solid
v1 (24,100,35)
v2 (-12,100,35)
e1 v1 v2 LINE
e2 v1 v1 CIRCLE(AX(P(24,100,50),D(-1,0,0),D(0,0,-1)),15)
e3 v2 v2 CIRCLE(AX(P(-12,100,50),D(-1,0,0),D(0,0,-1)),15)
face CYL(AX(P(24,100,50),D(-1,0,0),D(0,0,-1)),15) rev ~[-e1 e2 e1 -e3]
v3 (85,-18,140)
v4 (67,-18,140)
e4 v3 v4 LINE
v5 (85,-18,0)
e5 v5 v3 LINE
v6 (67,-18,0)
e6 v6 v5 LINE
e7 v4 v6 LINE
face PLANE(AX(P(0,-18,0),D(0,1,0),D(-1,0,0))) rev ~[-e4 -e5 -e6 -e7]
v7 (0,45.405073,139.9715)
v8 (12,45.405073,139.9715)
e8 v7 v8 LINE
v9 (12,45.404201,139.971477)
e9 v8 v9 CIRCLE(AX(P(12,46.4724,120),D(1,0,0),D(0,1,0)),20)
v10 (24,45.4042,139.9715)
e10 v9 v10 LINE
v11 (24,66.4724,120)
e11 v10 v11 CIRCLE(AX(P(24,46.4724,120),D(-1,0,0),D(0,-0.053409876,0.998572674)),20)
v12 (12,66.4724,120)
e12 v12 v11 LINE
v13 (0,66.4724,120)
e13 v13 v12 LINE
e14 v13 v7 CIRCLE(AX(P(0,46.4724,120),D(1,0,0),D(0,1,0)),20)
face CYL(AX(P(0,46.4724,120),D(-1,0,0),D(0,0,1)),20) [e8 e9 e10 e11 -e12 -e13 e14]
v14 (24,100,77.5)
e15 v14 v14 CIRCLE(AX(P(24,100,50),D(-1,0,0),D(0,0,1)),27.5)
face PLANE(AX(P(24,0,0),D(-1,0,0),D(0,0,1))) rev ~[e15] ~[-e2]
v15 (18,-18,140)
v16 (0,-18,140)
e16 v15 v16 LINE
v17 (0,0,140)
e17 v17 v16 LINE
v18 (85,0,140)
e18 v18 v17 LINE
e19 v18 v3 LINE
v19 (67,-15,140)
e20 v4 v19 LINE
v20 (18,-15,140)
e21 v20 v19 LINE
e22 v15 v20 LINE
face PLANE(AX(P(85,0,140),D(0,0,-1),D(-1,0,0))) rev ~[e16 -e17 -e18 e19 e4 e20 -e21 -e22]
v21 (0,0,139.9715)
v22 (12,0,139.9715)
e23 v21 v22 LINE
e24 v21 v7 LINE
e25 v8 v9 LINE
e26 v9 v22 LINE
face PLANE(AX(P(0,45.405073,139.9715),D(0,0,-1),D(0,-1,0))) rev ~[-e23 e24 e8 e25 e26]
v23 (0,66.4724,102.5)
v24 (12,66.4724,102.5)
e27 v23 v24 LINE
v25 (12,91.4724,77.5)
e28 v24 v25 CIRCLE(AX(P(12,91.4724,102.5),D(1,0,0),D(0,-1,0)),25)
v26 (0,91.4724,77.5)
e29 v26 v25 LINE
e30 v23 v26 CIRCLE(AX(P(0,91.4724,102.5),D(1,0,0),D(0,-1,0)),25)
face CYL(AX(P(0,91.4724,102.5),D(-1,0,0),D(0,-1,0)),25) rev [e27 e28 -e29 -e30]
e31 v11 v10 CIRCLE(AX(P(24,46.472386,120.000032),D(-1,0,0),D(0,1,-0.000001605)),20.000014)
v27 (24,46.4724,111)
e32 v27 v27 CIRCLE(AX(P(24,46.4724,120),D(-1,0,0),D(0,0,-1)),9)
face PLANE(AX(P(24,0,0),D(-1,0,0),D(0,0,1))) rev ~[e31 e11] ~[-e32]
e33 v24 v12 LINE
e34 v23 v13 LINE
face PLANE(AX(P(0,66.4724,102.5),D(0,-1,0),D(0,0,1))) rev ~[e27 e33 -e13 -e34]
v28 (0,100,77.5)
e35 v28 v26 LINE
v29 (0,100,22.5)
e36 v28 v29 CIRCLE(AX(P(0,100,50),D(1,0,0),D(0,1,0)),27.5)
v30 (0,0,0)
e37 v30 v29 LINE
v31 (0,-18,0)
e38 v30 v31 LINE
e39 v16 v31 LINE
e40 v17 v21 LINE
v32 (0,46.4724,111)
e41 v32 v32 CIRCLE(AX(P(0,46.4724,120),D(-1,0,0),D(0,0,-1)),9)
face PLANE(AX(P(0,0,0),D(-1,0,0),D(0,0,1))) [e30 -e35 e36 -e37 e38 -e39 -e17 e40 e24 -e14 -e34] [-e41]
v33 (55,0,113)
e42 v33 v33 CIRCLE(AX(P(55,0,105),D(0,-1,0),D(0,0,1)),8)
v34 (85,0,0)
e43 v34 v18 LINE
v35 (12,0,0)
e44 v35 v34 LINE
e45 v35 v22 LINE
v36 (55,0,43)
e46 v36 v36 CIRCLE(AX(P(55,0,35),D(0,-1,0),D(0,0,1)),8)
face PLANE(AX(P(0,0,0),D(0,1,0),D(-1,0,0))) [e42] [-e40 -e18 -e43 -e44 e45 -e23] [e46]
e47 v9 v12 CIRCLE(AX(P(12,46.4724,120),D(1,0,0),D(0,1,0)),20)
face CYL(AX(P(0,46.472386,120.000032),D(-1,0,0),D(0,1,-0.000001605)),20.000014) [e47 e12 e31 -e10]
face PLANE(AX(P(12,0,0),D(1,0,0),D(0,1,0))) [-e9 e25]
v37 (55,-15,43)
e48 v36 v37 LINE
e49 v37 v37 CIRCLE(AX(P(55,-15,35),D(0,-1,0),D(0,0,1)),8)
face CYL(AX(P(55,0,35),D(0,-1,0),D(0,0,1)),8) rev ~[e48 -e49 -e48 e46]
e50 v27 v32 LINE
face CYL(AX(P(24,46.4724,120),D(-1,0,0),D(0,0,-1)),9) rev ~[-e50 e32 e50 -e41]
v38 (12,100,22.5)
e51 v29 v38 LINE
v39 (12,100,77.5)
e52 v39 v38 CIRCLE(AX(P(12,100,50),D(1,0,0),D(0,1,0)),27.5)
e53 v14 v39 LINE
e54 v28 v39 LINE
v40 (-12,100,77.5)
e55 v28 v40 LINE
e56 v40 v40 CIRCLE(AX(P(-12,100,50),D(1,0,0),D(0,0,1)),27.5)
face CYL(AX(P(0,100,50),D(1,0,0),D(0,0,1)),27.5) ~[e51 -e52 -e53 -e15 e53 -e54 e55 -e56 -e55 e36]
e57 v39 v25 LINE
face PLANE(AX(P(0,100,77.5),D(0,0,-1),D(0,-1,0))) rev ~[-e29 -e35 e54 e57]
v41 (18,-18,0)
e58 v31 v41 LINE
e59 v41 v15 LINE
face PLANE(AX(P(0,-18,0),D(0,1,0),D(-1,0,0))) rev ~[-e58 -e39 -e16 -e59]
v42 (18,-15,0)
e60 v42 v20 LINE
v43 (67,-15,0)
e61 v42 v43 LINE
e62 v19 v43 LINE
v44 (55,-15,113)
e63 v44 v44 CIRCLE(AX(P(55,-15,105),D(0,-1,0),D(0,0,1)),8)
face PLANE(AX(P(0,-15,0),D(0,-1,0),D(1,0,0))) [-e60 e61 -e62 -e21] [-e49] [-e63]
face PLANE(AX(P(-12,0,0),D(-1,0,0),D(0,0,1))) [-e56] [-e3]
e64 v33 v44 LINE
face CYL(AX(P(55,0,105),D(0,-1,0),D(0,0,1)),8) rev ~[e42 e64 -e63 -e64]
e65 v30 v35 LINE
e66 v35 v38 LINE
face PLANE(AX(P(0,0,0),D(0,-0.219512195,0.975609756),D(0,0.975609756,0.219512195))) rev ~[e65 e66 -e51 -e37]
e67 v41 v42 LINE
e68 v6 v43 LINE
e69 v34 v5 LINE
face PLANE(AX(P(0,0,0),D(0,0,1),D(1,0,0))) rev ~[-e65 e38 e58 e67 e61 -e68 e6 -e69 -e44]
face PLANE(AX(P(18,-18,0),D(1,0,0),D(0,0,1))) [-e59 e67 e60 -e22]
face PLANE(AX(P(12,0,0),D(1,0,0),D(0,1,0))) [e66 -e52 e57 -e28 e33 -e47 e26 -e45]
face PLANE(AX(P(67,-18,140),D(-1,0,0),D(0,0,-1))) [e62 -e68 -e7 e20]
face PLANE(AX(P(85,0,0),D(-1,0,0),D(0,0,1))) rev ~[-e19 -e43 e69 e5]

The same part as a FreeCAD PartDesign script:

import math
import FreeCAD as App
import Part
import Sketcher
from FreeCAD import Vector


def add_polygon(sketch, points):
    """Adds a closed chain of lines whose ends are joined by coincident constraints."""
    first, n = sketch.GeometryCount, len(points)
    for a, b in zip(points, points[1:] + points[:1]):
        sketch.addGeometry(Part.LineSegment(App.Vector(*a, 0), App.Vector(*b, 0)), False)
    for i in range(n):
        sketch.addConstraint(Sketcher.Constraint("Coincident", first + i, 2, first + (i + 1) % n, 1))

doc = App.newDocument("Part")
body = doc.addObject("PartDesign::Body", "Body")

# Sketch on YZ plane
sketch1 = body.newObject("Sketcher::SketchObject", "Sketch")
sketch1.AttachmentSupport = (doc.getObject("YZ_Plane"), [""])
sketch1.MapMode = "FlatFace"
sketch1.addGeometry([
    Part.LineSegment(Vector(66.4724, 102.5, 0), Vector(66.4724, 120, 0)),  # 0
    Part.ArcOfCircle(Part.Circle(Vector(46.4724, 120, 0), Vector(0, 0, 1), 20), math.radians(93.059121), math.radians(360)),  # 1
    Part.LineSegment(Vector(45.405073, 139.9715, 0), Vector(0, 139.9715, 0)),  # 2
    Part.LineSegment(Vector(0, 139.9715, 0), Vector(0, 0, 0)),  # 3
    Part.LineSegment(Vector(0, 0, 0), Vector(100, 22.5, 0)),  # 4
    Part.ArcOfCircle(Part.Circle(Vector(100, 50, 0), Vector(0, 0, 1), 27.5), math.radians(90), math.radians(270)),  # 5
    Part.LineSegment(Vector(100, 77.5, 0), Vector(91.4724, 77.5, 0)),  # 6
    Part.ArcOfCircle(Part.Circle(Vector(91.4724, 102.5, 0), Vector(0, 0, 1), 25), math.radians(180), math.radians(270)),  # 7
], False)
sketch1.addConstraint([
    Sketcher.Constraint("Tangent", 0, 2, 1, 2),
    Sketcher.Constraint("Coincident", 1, 1, 2, 1),
    Sketcher.Constraint("Coincident", 2, 2, 3, 1),
    Sketcher.Constraint("Coincident", 3, 2, 4, 1),
    Sketcher.Constraint("Coincident", 4, 2, 5, 2),
    Sketcher.Constraint("Tangent", 5, 1, 6, 1),
    Sketcher.Constraint("Tangent", 6, 2, 7, 2),
    Sketcher.Constraint("Tangent", 7, 1, 0, 1),
    Sketcher.Constraint("Vertical", 0),
    Sketcher.Constraint("Horizontal", 2),
    Sketcher.Constraint("Vertical", 3),
    Sketcher.Constraint("Horizontal", 6),
    Sketcher.Constraint("Coincident", 3, 2, -1, 1),
    Sketcher.Constraint("Vertical", 5, 3, 4, 2),
    Sketcher.Constraint("Radius", 1, 20.0),
    Sketcher.Constraint("Radius", 7, 25.0),
    Sketcher.Constraint("Radius", 5, 27.5),
    Sketcher.Constraint("DistanceY", -1, 1, 1, 3, 120.0),
    Sketcher.Constraint("DistanceX", -1, 1, 5, 3, 100.0),
    Sketcher.Constraint("DistanceY", -1, 1, 5, 3, 50.0),
    Sketcher.Constraint("DistanceX", 2, 2, 2, 1, 45.405),
    Sketcher.Constraint("DistanceX", 6, 2, 6, 1, 8.5276),
])
pad1 = body.newObject("PartDesign::Pad", "Pad")
pad1.Profile = sketch1
pad1.Length = 12

# Sketch on XZ plane
sketch2 = body.newObject("Sketcher::SketchObject", "Sketch001")
sketch2.AttachmentSupport = (doc.getObject("XZ_Plane"), [""])
sketch2.MapMode = "FlatFace"
add_polygon(sketch2, [(85, 0), (0, 0), (0, 140), (85, 140)])  # lines 0-3
sketch2.addConstraint([
    Sketcher.Constraint("Horizontal", 0),
    Sketcher.Constraint("Vertical", 1),
    Sketcher.Constraint("Horizontal", 2),
    Sketcher.Constraint("Vertical", 3),
    Sketcher.Constraint("Coincident", 0, 2, -1, 1),
    Sketcher.Constraint("DistanceX", 0, 2, 0, 1, 85.0),
    Sketcher.Constraint("DistanceY", 1, 1, 1, 2, 140.0),
])
pad2 = body.newObject("PartDesign::Pad", "Pad001")
pad2.Profile = sketch2
pad2.Length = 18

# Sketch on YZ plane
sketch3 = body.newObject("Sketcher::SketchObject", "Sketch002")
sketch3.AttachmentSupport = (doc.getObject("YZ_Plane"), [""])
sketch3.MapMode = "FlatFace"
sketch3.addGeometry(Part.Circle(Vector(100, 50, 0), Vector(0, 0, 1), 27.5), False)
sketch3.addConstraint([
    Sketcher.Constraint("Diameter", 0, 55.0),
    Sketcher.Constraint("DistanceX", -1, 1, 0, 3, 100.0),
    Sketcher.Constraint("DistanceY", -1, 1, 0, 3, 50.0),
])
pad3 = body.newObject("PartDesign::Pad", "Pad002")
pad3.Profile = sketch3
pad3.Type = "TwoLengths"
pad3.Length = 12
pad3.Length2 = 24
pad3.Reversed = True

# Sketch on YZ plane
sketch4 = body.newObject("Sketcher::SketchObject", "Sketch003")
sketch4.AttachmentSupport = (doc.getObject("YZ_Plane"), [""])
sketch4.MapMode = "FlatFace"
sketch4.addGeometry([
    Part.ArcOfCircle(Part.Circle(Vector(46.4724, 120, 0), Vector(0, 0, 1), 20), math.radians(0), math.radians(93.061617)),
    Part.ArcOfCircle(Part.Circle(Vector(46.4724, 120, 0), Vector(0, 0, 1), 20), math.radians(93.061617), math.radians(360)),
], False)
sketch4.addConstraint([
    Sketcher.Constraint("Tangent", 0, 1, 1, 2),
    Sketcher.Constraint("Coincident", 1, 1, 0, 2),
    Sketcher.Constraint("Horizontal", 1, 3, 0, 1),
    Sketcher.Constraint("Radius", 0, 20.0),
    Sketcher.Constraint("DistanceY", -1, 1, 0, 3, 120.0),
    Sketcher.Constraint("DistanceX", -1, 1, 0, 3, 46.4724),
    Sketcher.Constraint("DistanceX", -1, 1, 1, 1, 45.4042),
])
pad4 = body.newObject("PartDesign::Pad", "Pad003")
pad4.Profile = sketch4
pad4.Length = 24

# Sketch on YZ plane
sketch5 = body.newObject("Sketcher::SketchObject", "Sketch004")
sketch5.AttachmentSupport = (doc.getObject("YZ_Plane"), [""])
sketch5.MapMode = "FlatFace"
sketch5.AttachmentOffset = App.Placement(Vector(0, 0, 24), App.Rotation())
sketch5.addGeometry(Part.Circle(Vector(100, 50, 0), Vector(0, 0, 1), 15), False)
sketch5.addConstraint([
    Sketcher.Constraint("Diameter", 0, 30.0),
    Sketcher.Constraint("DistanceX", -1, 1, 0, 3, 100.0),
    Sketcher.Constraint("DistanceY", -1, 1, 0, 3, 50.0),
])
doc.recompute()
hole = body.newObject("PartDesign::Hole", "Hole")
hole.Profile = sketch5
hole.ThreadType = "None"
hole.Diameter = 30
hole.DepthType = "ThroughAll"

# Sketch on YZ plane
sketch6 = body.newObject("Sketcher::SketchObject", "Sketch005")
sketch6.AttachmentSupport = (doc.getObject("YZ_Plane"), [""])
sketch6.MapMode = "FlatFace"
sketch6.AttachmentOffset = App.Placement(Vector(0, 0, 24), App.Rotation())
sketch6.addGeometry(Part.Circle(Vector(46.4724, 120, 0), Vector(0, 0, 1), 9), False)
sketch6.addConstraint([
    Sketcher.Constraint("Diameter", 0, 18.0),
    Sketcher.Constraint("DistanceY", -1, 1, 0, 3, 120.0),
    Sketcher.Constraint("DistanceX", -1, 1, 0, 3, 46.4724),
])
doc.recompute()
hole2 = body.newObject("PartDesign::Hole", "Hole001")
hole2.Profile = sketch6
hole2.ThreadType = "None"
hole2.Diameter = 18
hole2.DepthType = "ThroughAll"

# Sketch on XZ plane
sketch7 = body.newObject("Sketcher::SketchObject", "Sketch006")
sketch7.AttachmentSupport = (doc.getObject("XZ_Plane"), [""])
sketch7.MapMode = "FlatFace"
sketch7.addGeometry([
    Part.Circle(Vector(55, 105, 0), Vector(0, 0, 1), 8),
    Part.Circle(Vector(55, 35, 0), Vector(0, 0, 1), 8),
], False)
sketch7.addConstraint([
    Sketcher.Constraint("Equal", 0, 1),
    Sketcher.Constraint("Vertical", 0, 3, 1, 3),
    Sketcher.Constraint("Diameter", 0, 16.0),
    Sketcher.Constraint("DistanceX", -1, 1, 0, 3, 55.0),
    Sketcher.Constraint("DistanceY", -1, 1, 0, 3, 105.0),
    Sketcher.Constraint("DistanceY", -1, 1, 1, 3, 35.0),
])
doc.recompute()
hole3 = body.newObject("PartDesign::Hole", "Hole002")
hole3.Profile = sketch7
hole3.ThreadType = "None"
hole3.Diameter = 16
hole3.DepthType = "ThroughAll"
hole3.Reversed = True

# Sketch on XZ plane
sketch8 = body.newObject("Sketcher::SketchObject", "Sketch007")
sketch8.AttachmentSupport = (doc.getObject("XZ_Plane"), [""])
sketch8.MapMode = "FlatFace"
sketch8.AttachmentOffset = App.Placement(Vector(0, 0, 18), App.Rotation())
add_polygon(sketch8, [(18, 140), (18, 0), (67, 0), (67, 140)])  # lines 0-3
sketch8.addConstraint([
    Sketcher.Constraint("Vertical", 0),
    Sketcher.Constraint("Horizontal", 1),
    Sketcher.Constraint("Vertical", 2),
    Sketcher.Constraint("Horizontal", 3),
    Sketcher.Constraint("PointOnObject", 0, 2, -1),
    Sketcher.Constraint("DistanceX", -1, 1, 0, 2, 18.0),
    Sketcher.Constraint("DistanceX", 1, 1, 1, 2, 49.0),
    Sketcher.Constraint("DistanceY", 0, 2, 0, 1, 140.0),
])
pocket1 = body.newObject("PartDesign::Pocket", "Pocket")
pocket1.Profile = sketch8
pocket1.Length = 3

doc.recompute()
